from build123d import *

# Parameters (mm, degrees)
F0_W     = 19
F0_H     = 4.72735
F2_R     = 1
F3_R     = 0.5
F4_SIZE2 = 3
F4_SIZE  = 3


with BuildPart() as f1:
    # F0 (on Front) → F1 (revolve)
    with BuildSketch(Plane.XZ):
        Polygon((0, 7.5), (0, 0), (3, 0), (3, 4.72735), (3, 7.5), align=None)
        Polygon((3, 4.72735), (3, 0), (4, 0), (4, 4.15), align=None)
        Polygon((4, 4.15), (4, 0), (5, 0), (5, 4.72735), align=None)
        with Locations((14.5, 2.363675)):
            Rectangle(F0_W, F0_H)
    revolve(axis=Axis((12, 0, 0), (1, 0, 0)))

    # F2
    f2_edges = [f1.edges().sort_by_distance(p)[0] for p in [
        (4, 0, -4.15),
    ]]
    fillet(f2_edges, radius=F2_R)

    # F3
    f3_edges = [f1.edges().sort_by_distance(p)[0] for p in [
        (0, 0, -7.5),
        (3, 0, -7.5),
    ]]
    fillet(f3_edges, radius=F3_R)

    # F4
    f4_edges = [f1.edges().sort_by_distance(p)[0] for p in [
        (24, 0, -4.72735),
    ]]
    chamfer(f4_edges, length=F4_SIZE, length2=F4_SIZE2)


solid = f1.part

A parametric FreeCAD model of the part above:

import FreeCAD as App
import Part
import Sketcher
Q = App.Units.Quantity


def edges_at(feature, points):
    """Names of the edges that pass closest to the given points."""
    edges = feature.Shape.Edges
    near = lambda p: min(range(len(edges)), key=lambda i: edges[i].distToShape(Part.Vertex(*p))[0])
    return sorted({f"Edge{near(p) + 1}" for p in points})


def add_polygon(sketch, points):
    """Adds a closed chain of lines whose ends are joined by coincident constraints."""
    first, n = sketch.GeometryCount, len(points)
    for a, b in zip(points, points[1:] + points[:1]):
        sketch.addGeometry(Part.LineSegment(App.Vector(*a, 0), App.Vector(*b, 0)), False)
    for i in range(n):
        sketch.addConstraint(Sketcher.Constraint("Coincident", first + i, 2, first + (i + 1) % n, 1))

doc = App.newDocument("Part")
body = doc.addObject("PartDesign::Body", "Body")

# Sketch on XZ plane
sketch1 = body.newObject("Sketcher::SketchObject", "Sketch")
sketch1.AttachmentSupport = (doc.getObject("XZ_Plane"), [""])
sketch1.MapMode = "FlatFace"
add_polygon(sketch1, [(0, 7.5), (0, 0), (24, 0), (24, 4.7), (5, 4.7), (4, 4.2), (3, 4.7), (3, 7.5)])  # lines 0-7
sketch1.addConstraint(Sketcher.Constraint("Vertical", 0))
sketch1.addConstraint(Sketcher.Constraint("Horizontal", 1))
sketch1.addConstraint(Sketcher.Constraint("Vertical", 2))
sketch1.addConstraint(Sketcher.Constraint("Horizontal", 3))
sketch1.addConstraint(Sketcher.Constraint("Vertical", 6))
sketch1.addConstraint(Sketcher.Constraint("Horizontal", 7))
sketch1.addConstraint(Sketcher.Constraint("Coincident", 0, 2, -1, 1))
sketch1.addConstraint(Sketcher.Constraint("Horizontal", 3, 2, 5, 2))
sketch1.addConstraint(Sketcher.Constraint("Equal", 4, 5))
sketch1.addConstraint(Sketcher.Constraint("DistanceX", 1, 1, 1, 2, Q("24 mm")))
sketch1.addConstraint(Sketcher.Constraint("DistanceX", 3, 2, 3, 1, Q("19 mm")))
sketch1.addConstraint(Sketcher.Constraint("DistanceX", 7, 2, 7, 1, Q("3 mm")))
sketch1.addConstraint(Sketcher.Constraint("Angle", 4, Q("-150.000012 deg")))
sketch1.addConstraint(Sketcher.Constraint("DistanceY", 0, 2, 0, 1, Q("7.5 mm")))
sketch1.addConstraint(Sketcher.Constraint("DistanceY", -1, 1, 4, 2, Q("4.15 mm")))
revolution = body.newObject("PartDesign::Revolution", "Revolution")
revolution.Profile = sketch1
revolution.ReferenceAxis = (sketch1, ["H_Axis"])
revolution.Angle = 360
doc.recompute()

fillet = body.newObject("PartDesign::Fillet", "Fillet")
fillet.Base = (revolution, edges_at(revolution, [(4, 0, -4.15)]))
fillet.Radius = 1
doc.recompute()

fillet2 = body.newObject("PartDesign::Fillet", "Fillet001")
fillet2.Base = (fillet, edges_at(fillet, [(0, 0, -7.5), (3, 0, -7.5)]))
fillet2.Radius = 0.5
doc.recompute()

chamfer = body.newObject("PartDesign::Chamfer", "Chamfer")
chamfer.Base = (fillet2, edges_at(fillet2, [(24, 0, -4.727)]))
chamfer.ChamferType = "Two distances"
chamfer.Size = 3
chamfer.Size2 = 3

doc.recompute()
